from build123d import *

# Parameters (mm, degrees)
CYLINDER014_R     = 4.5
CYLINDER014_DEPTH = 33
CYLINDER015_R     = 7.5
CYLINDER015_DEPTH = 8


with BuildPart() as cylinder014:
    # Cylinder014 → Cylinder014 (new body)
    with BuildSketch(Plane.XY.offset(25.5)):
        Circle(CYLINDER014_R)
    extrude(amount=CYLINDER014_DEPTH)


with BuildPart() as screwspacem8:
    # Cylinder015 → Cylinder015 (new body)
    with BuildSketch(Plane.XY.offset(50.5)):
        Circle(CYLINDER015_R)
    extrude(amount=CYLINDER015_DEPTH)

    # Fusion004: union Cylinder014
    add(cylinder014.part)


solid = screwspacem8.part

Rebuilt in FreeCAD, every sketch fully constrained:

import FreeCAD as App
import Part
import Sketcher

V = App.Vector

doc = App.newDocument("Part")
body = doc.addObject("PartDesign::Body", "Body")

# Sketch on XY plane
sketch1 = body.newObject("Sketcher::SketchObject", "Sketch")
sketch1.AttachmentSupport = (doc.getObject("XY_Plane"), [""])
sketch1.MapMode = "FlatFace"
sketch1.AttachmentOffset = App.Placement(V(0, 0, 25.5), App.Rotation())
sketch1.addGeometry(Part.Circle(V(0, 0, 0), V(0, 0, 1), 4.5), False)
sketch1.addConstraint([
    Sketcher.Constraint("Coincident", 0, 3, -1, 1),
    Sketcher.Constraint("Diameter", 0, 9.0),
])
pad1 = body.newObject("PartDesign::Pad", "Pad")
pad1.Profile = sketch1
pad1.Length = 33
body2 = doc.addObject("PartDesign::Body", "Body001")

# Sketch on XY plane
sketch2 = body2.newObject("Sketcher::SketchObject", "Sketch001")
sketch2.AttachmentSupport = (doc.getObject("XY_Plane001"), [""])
sketch2.MapMode = "FlatFace"
sketch2.AttachmentOffset = App.Placement(V(0, 0, 50.5), App.Rotation())
sketch2.addGeometry(Part.Circle(V(0, 0, 0), V(0, 0, 1), 8), False)
sketch2.addConstraint([
    Sketcher.Constraint("Coincident", 0, 3, -1, 1),
    Sketcher.Constraint("Diameter", 0, 15.0),
])
pad2 = body2.newObject("PartDesign::Pad", "Pad001")
pad2.Profile = sketch2
pad2.Length = 8
doc.recompute()

boolean = body2.newObject("PartDesign::Boolean", "Boolean")
boolean.Type = "Fuse"
boolean.addObjects([body])

doc.recompute()
